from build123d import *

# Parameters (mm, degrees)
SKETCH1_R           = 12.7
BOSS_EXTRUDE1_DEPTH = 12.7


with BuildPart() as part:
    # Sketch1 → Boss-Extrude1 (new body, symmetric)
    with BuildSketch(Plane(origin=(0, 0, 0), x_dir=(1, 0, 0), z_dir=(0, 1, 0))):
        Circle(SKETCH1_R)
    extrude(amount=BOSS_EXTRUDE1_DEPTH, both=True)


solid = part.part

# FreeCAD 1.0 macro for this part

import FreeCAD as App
import Part
import Sketcher

V = App.Vector
Q = App.Units.Quantity

doc = App.newDocument("Part")
body = doc.addObject("PartDesign::Body", "Body")

# Sketch on XZ plane
sketch1 = body.newObject("Sketcher::SketchObject", "Sketch")
sketch1.AttachmentSupport = (doc.getObject("XZ_Plane"), [""])
sketch1.MapMode = "FlatFace"
sketch1.addGeometry(Part.Circle(V(0, 0, 0), V(0, 0, 1), 13), False)
sketch1.addConstraint([
    Sketcher.Constraint("Coincident", 0, 3, -1, 1),
    Sketcher.Constraint("Diameter", 0, Q("1 in")),
])
pad1 = body.newObject("PartDesign::Pad", "Pad")
pad1.Profile = sketch1
pad1.Length = Q("1 in")
pad1.Midplane = True

doc.recompute()
